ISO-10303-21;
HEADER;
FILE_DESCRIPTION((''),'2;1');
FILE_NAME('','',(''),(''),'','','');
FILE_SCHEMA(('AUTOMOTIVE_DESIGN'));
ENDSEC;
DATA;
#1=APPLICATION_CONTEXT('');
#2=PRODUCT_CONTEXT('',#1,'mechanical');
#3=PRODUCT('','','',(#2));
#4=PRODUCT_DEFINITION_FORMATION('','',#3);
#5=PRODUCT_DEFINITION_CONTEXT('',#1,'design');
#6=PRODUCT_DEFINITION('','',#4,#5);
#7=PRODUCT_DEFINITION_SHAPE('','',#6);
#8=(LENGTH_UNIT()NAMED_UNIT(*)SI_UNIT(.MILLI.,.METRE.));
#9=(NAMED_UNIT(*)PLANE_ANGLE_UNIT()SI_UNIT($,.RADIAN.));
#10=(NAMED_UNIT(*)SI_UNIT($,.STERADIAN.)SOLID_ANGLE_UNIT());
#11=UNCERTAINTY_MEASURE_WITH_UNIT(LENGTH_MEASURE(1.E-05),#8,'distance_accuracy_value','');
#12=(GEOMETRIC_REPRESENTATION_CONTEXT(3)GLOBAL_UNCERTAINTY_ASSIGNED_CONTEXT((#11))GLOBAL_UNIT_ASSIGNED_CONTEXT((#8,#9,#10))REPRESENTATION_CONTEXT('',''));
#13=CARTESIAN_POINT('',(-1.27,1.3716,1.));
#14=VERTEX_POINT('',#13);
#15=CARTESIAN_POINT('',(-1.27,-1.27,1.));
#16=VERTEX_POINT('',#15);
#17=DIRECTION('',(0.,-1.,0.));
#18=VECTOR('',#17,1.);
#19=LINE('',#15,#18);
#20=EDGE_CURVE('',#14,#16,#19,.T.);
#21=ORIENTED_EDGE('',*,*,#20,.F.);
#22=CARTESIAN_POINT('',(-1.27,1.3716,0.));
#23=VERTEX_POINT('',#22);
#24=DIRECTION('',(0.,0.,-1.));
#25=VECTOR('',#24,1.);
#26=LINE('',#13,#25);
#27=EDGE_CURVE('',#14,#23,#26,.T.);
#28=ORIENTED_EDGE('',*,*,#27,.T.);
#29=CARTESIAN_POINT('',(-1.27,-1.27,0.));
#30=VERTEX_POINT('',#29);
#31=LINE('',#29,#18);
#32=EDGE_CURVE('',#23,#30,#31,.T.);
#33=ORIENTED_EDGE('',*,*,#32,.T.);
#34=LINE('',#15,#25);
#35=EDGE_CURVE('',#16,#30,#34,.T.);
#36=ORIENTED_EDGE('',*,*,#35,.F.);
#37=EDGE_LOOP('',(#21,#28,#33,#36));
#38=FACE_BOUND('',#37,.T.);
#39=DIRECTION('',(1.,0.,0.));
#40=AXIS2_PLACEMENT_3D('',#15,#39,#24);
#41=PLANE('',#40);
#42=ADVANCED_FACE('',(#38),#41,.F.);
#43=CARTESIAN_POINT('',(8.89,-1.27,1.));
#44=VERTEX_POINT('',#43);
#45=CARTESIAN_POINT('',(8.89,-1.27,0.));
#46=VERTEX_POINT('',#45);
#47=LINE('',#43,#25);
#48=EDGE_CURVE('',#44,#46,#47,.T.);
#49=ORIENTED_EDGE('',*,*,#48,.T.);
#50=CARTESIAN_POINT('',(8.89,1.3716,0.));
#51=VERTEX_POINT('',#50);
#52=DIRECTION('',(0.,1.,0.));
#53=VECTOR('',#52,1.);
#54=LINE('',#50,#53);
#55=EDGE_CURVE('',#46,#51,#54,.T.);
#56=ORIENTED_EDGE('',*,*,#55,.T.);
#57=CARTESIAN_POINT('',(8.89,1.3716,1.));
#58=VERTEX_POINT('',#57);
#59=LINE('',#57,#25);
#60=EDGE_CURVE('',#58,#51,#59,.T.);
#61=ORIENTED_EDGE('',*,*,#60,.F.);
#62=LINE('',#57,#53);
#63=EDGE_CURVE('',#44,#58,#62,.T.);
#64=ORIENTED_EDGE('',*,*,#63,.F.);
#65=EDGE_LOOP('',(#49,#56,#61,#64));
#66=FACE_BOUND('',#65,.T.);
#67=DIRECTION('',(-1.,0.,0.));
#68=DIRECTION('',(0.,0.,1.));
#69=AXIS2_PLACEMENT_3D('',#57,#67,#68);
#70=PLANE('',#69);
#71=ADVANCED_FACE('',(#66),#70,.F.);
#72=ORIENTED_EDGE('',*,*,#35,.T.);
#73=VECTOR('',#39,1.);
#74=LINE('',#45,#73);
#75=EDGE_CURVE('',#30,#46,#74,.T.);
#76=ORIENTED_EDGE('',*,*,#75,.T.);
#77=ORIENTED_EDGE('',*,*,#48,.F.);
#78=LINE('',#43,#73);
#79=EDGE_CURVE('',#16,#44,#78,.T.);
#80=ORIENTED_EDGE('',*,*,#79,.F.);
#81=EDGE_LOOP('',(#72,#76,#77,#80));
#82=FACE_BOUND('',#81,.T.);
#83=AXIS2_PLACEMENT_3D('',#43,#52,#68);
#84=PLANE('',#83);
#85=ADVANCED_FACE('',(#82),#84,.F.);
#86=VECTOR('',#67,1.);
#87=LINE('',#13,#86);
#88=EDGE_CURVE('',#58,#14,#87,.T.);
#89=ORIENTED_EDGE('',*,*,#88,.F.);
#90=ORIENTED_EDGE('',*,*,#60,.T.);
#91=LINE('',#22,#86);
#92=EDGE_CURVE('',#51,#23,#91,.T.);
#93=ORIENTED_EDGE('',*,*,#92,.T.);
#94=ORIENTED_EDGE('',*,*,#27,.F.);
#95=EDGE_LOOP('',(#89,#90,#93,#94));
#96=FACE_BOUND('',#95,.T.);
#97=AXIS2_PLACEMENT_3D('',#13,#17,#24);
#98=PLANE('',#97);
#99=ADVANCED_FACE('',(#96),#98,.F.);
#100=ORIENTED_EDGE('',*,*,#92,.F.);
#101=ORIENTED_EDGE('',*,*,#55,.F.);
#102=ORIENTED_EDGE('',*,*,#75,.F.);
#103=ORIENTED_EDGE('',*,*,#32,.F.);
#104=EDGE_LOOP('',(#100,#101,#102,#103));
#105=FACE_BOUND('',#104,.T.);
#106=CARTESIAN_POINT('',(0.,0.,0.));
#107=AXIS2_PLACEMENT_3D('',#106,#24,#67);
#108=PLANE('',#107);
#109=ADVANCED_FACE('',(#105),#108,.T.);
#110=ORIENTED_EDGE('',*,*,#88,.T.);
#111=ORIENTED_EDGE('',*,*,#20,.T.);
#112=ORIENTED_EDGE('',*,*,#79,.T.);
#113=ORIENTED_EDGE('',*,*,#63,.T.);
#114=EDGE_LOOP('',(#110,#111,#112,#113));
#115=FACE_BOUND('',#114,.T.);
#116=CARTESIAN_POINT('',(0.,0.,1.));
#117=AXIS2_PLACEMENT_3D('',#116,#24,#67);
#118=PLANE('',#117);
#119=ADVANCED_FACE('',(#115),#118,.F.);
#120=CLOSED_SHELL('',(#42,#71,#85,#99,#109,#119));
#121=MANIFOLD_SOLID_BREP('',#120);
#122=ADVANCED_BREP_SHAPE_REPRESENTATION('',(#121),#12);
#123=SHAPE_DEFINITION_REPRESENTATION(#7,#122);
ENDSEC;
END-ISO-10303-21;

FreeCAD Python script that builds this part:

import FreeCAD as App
import Part
import Sketcher

V = App.Vector
Q = App.Units.Quantity


def add_polygon(sketch, points):
    """Adds a closed chain of lines whose ends are joined by coincident constraints."""
    first, n = sketch.GeometryCount, len(points)
    for a, b in zip(points, points[1:] + points[:1]):
        sketch.addGeometry(Part.LineSegment(App.Vector(*a, 0), App.Vector(*b, 0)), False)
    for i in range(n):
        sketch.addConstraint(Sketcher.Constraint("Coincident", first + i, 2, first + (i + 1) % n, 1))

doc = App.newDocument("Part")
body = doc.addObject("PartDesign::Body", "Body")

sketch1 = body.newObject("Sketcher::SketchObject", "Sketch")
sketch1.AttachmentSupport = (doc.getObject("XY_Plane"), [""])
sketch1.MapMode = "FlatFace"
add_polygon(sketch1, [(-1.27, 1.3716), (-1.27, -1.27), (8.89, -1.27), (8.89, 1.3716)])
sketch1.addConstraint([
    Sketcher.Constraint("Vertical", 0),
    Sketcher.Constraint("Horizontal", 1),
    Sketcher.Constraint("Vertical", 2),
    Sketcher.Constraint("Horizontal", 3),
    Sketcher.Constraint("DistanceX", 1, 1, 1, 2, Q("0.4 in")),
    Sketcher.Constraint("DistanceY", 0, 2, 0, 1, Q("0.104 in")),
    Sketcher.Constraint("DistanceX", 0, 2, -1, 1, Q("0.05 in")),
    Sketcher.Constraint("DistanceY", 0, 2, -1, 1, Q("0.05 in")),
])
pad1 = body.newObject("PartDesign::Pad", "Pad")
pad1.Profile = sketch1
pad1.Length = 1

doc.recompute()
